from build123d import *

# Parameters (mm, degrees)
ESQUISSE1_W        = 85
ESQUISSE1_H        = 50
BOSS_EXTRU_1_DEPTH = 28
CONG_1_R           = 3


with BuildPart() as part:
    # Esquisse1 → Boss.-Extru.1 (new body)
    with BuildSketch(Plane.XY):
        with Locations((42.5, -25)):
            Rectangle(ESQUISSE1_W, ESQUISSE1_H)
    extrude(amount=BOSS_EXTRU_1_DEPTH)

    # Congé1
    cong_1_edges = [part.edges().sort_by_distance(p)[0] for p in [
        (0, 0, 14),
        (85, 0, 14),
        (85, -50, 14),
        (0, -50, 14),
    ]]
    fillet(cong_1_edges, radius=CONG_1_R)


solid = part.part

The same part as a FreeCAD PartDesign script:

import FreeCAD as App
import Part
import Sketcher

V = App.Vector
Q = App.Units.Quantity


def edges_at(feature, points):
    """Names of the edges that pass closest to the given points."""
    edges = feature.Shape.Edges
    near = lambda p: min(range(len(edges)), key=lambda i: edges[i].distToShape(Part.Vertex(*p))[0])
    return sorted({f"Edge{near(p) + 1}" for p in points})


def add_polygon(sketch, points):
    """Adds a closed chain of lines whose ends are joined by coincident constraints."""
    first, n = sketch.GeometryCount, len(points)
    for a, b in zip(points, points[1:] + points[:1]):
        sketch.addGeometry(Part.LineSegment(App.Vector(*a, 0), App.Vector(*b, 0)), False)
    for i in range(n):
        sketch.addConstraint(Sketcher.Constraint("Coincident", first + i, 2, first + (i + 1) % n, 1))

doc = App.newDocument("Part")
body = doc.addObject("PartDesign::Body", "Body")

# Sketch on XY plane
sketch1 = body.newObject("Sketcher::SketchObject", "Sketch")
sketch1.AttachmentSupport = (doc.getObject("XY_Plane"), [""])
sketch1.MapMode = "FlatFace"
add_polygon(sketch1, [(0, 0), (0, -50), (85, -50), (85, 0)])  # lines 0-3
sketch1.addConstraint([
    Sketcher.Constraint("Vertical", 0),
    Sketcher.Constraint("Horizontal", 1),
    Sketcher.Constraint("Vertical", 2),
    Sketcher.Constraint("Horizontal", 3),
    Sketcher.Constraint("Coincident", 3, 2, -1, 1),
    Sketcher.Constraint("DistanceX", 1, 1, 1, 2, Q("85 mm")),
    Sketcher.Constraint("DistanceY", 0, 2, 0, 1, Q("50 mm")),
])
pad1 = body.newObject("PartDesign::Pad", "Pad")
pad1.Profile = sketch1
pad1.Length = 28
doc.recompute()

fillet = body.newObject("PartDesign::Fillet", "Fillet")
fillet.Base = (pad1, edges_at(pad1, [
    (0, 0, 14),
    (85, 0, 14),
    (85, -50, 14),
    (0, -50, 14),
]))
fillet.Radius = 3

doc.recompute()
